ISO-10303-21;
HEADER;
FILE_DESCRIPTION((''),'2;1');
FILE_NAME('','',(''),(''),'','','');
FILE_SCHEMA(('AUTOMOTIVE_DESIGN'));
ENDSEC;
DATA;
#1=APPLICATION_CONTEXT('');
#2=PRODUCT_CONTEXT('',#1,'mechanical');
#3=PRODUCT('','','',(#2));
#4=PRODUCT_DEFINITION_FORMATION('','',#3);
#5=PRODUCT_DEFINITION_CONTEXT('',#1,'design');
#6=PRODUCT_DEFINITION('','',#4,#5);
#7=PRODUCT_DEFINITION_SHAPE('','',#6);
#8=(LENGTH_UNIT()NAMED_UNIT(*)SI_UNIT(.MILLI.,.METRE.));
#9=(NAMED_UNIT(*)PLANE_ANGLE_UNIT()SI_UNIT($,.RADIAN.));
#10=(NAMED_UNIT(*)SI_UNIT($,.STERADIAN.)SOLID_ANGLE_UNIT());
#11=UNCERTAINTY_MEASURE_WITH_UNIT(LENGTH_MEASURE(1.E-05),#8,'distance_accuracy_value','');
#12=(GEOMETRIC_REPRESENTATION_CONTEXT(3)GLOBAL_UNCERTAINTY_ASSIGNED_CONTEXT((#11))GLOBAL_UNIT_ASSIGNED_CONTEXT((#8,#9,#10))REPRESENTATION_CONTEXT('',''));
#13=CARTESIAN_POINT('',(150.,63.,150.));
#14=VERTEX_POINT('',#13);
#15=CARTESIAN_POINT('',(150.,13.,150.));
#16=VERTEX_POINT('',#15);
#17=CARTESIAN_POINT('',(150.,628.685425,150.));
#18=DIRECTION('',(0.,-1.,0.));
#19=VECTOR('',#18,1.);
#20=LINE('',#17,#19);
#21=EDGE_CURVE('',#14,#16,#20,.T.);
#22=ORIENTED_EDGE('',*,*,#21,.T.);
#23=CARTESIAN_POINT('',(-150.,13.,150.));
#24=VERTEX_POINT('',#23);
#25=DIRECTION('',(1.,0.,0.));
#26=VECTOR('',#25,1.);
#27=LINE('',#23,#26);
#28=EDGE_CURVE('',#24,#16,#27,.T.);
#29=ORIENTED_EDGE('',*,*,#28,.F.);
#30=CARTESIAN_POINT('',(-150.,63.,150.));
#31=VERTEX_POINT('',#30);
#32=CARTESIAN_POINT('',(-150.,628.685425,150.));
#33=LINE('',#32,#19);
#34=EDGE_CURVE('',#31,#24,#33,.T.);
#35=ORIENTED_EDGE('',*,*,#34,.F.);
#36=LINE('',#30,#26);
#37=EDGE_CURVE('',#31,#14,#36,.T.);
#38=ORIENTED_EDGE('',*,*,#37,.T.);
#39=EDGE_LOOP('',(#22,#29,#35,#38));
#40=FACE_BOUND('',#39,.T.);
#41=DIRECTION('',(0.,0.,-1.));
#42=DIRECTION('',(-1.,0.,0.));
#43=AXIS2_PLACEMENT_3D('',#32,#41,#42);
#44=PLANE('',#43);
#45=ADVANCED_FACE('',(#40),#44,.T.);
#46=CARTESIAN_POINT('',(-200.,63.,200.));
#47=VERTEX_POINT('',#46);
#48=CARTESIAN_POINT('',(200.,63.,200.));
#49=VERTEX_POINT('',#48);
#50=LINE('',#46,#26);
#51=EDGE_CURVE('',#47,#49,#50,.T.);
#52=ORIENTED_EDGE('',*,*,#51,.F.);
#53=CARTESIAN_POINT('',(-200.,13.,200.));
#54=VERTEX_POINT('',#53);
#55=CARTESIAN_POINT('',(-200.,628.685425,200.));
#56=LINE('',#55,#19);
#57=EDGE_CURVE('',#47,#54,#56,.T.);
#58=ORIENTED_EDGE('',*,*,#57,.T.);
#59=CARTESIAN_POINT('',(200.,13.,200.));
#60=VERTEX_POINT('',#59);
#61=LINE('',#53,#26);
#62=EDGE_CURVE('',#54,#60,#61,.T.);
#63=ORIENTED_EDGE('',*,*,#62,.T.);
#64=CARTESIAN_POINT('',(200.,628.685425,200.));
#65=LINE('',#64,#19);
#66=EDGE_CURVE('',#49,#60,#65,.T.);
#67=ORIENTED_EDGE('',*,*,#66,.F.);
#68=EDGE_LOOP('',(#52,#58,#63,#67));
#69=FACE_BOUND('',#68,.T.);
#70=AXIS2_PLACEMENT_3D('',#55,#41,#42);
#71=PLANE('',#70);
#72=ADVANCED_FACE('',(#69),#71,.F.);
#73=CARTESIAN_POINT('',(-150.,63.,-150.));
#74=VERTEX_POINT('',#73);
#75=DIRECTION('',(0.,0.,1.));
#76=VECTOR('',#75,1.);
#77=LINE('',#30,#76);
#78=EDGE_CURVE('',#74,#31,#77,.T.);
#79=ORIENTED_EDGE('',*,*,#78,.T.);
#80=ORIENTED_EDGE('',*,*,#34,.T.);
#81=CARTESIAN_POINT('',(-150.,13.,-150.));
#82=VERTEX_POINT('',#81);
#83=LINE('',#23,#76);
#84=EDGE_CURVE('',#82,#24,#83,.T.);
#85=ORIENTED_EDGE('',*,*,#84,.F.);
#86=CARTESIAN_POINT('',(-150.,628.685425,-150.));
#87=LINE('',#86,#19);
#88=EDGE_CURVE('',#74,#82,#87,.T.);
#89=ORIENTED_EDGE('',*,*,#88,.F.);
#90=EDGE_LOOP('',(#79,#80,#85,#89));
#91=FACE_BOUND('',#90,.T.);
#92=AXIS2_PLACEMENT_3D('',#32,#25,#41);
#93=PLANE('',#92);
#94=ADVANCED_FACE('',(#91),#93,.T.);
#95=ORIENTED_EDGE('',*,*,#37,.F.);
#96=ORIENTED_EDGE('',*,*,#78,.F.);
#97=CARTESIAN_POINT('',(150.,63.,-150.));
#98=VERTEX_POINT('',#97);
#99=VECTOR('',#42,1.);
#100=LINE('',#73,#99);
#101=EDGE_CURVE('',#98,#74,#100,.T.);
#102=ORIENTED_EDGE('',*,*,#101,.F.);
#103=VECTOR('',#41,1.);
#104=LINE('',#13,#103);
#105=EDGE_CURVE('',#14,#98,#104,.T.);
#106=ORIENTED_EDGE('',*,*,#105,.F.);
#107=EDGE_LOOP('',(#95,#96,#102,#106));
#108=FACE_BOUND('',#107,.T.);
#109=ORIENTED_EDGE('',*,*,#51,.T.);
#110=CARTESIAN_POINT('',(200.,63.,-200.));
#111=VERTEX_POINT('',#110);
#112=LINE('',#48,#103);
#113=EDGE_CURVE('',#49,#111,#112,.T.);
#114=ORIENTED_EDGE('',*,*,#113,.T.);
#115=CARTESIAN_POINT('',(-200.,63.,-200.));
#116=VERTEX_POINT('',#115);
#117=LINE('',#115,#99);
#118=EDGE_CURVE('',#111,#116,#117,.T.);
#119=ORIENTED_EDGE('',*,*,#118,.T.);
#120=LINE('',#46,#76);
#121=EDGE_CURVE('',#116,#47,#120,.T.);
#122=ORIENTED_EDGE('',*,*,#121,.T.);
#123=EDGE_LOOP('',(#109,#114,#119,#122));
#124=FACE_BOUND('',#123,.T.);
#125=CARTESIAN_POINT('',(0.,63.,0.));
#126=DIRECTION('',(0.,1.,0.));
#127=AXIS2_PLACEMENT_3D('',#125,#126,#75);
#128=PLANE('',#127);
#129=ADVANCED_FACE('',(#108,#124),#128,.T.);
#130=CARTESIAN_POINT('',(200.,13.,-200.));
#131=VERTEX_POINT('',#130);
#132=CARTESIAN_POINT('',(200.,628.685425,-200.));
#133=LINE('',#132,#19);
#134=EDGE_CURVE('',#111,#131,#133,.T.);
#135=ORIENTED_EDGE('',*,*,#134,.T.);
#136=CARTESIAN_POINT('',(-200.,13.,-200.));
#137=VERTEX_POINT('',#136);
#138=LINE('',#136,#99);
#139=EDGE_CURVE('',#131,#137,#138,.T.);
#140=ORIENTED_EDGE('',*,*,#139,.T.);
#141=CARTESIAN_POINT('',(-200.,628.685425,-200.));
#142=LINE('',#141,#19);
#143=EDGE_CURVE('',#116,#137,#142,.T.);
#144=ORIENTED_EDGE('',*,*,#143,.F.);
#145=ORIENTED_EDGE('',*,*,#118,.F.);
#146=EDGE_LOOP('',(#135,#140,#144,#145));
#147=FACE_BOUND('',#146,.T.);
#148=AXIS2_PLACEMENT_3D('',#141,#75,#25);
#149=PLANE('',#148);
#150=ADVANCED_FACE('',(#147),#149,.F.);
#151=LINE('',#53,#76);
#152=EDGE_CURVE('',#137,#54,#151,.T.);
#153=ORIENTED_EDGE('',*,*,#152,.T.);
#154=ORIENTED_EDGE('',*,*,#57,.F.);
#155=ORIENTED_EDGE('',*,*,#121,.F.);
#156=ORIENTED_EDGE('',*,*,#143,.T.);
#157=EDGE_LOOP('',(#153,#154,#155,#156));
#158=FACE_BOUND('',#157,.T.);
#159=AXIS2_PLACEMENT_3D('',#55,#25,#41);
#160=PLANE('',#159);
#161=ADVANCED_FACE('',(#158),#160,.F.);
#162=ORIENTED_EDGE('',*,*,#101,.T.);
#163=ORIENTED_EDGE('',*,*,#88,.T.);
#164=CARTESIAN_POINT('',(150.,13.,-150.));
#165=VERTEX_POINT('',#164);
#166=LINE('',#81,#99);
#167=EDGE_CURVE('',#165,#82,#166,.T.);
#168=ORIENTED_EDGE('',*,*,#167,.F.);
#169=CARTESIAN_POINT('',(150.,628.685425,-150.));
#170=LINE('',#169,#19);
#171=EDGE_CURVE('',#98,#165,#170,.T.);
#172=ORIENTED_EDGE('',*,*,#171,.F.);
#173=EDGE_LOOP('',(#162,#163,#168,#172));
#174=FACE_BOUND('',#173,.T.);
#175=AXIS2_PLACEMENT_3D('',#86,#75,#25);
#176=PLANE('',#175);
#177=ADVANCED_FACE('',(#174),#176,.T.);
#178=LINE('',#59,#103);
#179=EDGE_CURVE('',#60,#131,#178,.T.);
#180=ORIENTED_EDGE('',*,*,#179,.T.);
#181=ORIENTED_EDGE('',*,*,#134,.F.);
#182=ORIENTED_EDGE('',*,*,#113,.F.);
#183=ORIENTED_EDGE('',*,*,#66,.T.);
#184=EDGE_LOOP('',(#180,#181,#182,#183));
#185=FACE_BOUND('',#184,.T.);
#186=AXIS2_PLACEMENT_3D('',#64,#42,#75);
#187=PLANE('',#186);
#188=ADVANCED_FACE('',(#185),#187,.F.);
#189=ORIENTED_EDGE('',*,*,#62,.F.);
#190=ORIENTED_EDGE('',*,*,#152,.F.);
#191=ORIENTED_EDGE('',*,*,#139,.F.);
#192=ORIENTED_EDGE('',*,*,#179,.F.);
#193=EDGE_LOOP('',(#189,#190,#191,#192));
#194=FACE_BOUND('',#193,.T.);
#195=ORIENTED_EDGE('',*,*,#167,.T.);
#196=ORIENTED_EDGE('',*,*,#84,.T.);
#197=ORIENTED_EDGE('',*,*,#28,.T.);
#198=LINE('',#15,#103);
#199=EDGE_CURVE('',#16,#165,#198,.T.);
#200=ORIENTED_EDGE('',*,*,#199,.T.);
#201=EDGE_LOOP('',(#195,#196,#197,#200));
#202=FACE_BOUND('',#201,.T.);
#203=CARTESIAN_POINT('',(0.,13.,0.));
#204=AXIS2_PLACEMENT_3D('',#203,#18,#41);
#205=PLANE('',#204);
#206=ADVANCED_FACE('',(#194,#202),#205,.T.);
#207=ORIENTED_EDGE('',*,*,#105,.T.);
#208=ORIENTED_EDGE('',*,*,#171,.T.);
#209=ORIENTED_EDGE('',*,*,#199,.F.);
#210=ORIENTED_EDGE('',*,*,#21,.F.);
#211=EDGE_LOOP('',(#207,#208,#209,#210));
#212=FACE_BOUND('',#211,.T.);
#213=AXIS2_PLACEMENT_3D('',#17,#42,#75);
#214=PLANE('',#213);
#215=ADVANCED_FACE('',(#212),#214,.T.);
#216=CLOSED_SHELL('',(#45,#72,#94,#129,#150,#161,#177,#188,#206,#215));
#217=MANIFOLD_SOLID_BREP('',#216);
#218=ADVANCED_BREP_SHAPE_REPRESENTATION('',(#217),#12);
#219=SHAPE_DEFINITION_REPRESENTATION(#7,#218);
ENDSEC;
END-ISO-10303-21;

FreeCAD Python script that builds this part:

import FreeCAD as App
import Part
import Sketcher
from FreeCAD import Vector


def add_polygon(sketch, points):
    """Adds a closed chain of lines whose ends are joined by coincident constraints."""
    first, n = sketch.GeometryCount, len(points)
    for a, b in zip(points, points[1:] + points[:1]):
        sketch.addGeometry(Part.LineSegment(App.Vector(*a, 0), App.Vector(*b, 0)), False)
    for i in range(n):
        sketch.addConstraint(Sketcher.Constraint("Coincident", first + i, 2, first + (i + 1) % n, 1))

doc = App.newDocument("Part")
body = doc.addObject("PartDesign::Body", "Body")

# Sketch on XZ plane
sketch1 = body.newObject("Sketcher::SketchObject", "Sketch")
sketch1.AttachmentSupport = (doc.getObject("XZ_Plane"), [""])
sketch1.MapMode = "FlatFace"
sketch1.AttachmentOffset = App.Placement(Vector(0, 0, -13), App.Rotation())
add_polygon(sketch1, [(-200, -200), (-200, 200), (200, 200), (200, -200)])  # lines 0-3
add_polygon(sketch1, [(150, 150), (-150, 150), (-150, -150), (150, -150)])  # lines 4-7
sketch1.addConstraint(Sketcher.Constraint("Vertical", 0))
sketch1.addConstraint(Sketcher.Constraint("Horizontal", 1))
sketch1.addConstraint(Sketcher.Constraint("Vertical", 2))
sketch1.addConstraint(Sketcher.Constraint("Horizontal", 3))
sketch1.addConstraint(Sketcher.Constraint("Horizontal", 4))
sketch1.addConstraint(Sketcher.Constraint("Vertical", 5))
sketch1.addConstraint(Sketcher.Constraint("Horizontal", 6))
sketch1.addConstraint(Sketcher.Constraint("Vertical", 7))
sketch1.addConstraint(Sketcher.Constraint("Symmetric", 0, 2, 2, 2, -1, 1))
sketch1.addConstraint(Sketcher.Constraint("Symmetric", 4, 2, 6, 2, -1, 1))
sketch1.addConstraint(Sketcher.Constraint("Equal", 3, 0))
sketch1.addConstraint(Sketcher.Constraint("Equal", 6, 5))
sketch1.addConstraint(Sketcher.Constraint("DistanceX", 1, 1, 1, 2, 400.0))
sketch1.addConstraint(Sketcher.Constraint("DistanceX", 4, 2, 4, 1, 300.0))
pad1 = body.newObject("PartDesign::Pad", "Pad")
pad1.Profile = sketch1
pad1.Length = 50
pad1.Reversed = True

doc.recompute()
